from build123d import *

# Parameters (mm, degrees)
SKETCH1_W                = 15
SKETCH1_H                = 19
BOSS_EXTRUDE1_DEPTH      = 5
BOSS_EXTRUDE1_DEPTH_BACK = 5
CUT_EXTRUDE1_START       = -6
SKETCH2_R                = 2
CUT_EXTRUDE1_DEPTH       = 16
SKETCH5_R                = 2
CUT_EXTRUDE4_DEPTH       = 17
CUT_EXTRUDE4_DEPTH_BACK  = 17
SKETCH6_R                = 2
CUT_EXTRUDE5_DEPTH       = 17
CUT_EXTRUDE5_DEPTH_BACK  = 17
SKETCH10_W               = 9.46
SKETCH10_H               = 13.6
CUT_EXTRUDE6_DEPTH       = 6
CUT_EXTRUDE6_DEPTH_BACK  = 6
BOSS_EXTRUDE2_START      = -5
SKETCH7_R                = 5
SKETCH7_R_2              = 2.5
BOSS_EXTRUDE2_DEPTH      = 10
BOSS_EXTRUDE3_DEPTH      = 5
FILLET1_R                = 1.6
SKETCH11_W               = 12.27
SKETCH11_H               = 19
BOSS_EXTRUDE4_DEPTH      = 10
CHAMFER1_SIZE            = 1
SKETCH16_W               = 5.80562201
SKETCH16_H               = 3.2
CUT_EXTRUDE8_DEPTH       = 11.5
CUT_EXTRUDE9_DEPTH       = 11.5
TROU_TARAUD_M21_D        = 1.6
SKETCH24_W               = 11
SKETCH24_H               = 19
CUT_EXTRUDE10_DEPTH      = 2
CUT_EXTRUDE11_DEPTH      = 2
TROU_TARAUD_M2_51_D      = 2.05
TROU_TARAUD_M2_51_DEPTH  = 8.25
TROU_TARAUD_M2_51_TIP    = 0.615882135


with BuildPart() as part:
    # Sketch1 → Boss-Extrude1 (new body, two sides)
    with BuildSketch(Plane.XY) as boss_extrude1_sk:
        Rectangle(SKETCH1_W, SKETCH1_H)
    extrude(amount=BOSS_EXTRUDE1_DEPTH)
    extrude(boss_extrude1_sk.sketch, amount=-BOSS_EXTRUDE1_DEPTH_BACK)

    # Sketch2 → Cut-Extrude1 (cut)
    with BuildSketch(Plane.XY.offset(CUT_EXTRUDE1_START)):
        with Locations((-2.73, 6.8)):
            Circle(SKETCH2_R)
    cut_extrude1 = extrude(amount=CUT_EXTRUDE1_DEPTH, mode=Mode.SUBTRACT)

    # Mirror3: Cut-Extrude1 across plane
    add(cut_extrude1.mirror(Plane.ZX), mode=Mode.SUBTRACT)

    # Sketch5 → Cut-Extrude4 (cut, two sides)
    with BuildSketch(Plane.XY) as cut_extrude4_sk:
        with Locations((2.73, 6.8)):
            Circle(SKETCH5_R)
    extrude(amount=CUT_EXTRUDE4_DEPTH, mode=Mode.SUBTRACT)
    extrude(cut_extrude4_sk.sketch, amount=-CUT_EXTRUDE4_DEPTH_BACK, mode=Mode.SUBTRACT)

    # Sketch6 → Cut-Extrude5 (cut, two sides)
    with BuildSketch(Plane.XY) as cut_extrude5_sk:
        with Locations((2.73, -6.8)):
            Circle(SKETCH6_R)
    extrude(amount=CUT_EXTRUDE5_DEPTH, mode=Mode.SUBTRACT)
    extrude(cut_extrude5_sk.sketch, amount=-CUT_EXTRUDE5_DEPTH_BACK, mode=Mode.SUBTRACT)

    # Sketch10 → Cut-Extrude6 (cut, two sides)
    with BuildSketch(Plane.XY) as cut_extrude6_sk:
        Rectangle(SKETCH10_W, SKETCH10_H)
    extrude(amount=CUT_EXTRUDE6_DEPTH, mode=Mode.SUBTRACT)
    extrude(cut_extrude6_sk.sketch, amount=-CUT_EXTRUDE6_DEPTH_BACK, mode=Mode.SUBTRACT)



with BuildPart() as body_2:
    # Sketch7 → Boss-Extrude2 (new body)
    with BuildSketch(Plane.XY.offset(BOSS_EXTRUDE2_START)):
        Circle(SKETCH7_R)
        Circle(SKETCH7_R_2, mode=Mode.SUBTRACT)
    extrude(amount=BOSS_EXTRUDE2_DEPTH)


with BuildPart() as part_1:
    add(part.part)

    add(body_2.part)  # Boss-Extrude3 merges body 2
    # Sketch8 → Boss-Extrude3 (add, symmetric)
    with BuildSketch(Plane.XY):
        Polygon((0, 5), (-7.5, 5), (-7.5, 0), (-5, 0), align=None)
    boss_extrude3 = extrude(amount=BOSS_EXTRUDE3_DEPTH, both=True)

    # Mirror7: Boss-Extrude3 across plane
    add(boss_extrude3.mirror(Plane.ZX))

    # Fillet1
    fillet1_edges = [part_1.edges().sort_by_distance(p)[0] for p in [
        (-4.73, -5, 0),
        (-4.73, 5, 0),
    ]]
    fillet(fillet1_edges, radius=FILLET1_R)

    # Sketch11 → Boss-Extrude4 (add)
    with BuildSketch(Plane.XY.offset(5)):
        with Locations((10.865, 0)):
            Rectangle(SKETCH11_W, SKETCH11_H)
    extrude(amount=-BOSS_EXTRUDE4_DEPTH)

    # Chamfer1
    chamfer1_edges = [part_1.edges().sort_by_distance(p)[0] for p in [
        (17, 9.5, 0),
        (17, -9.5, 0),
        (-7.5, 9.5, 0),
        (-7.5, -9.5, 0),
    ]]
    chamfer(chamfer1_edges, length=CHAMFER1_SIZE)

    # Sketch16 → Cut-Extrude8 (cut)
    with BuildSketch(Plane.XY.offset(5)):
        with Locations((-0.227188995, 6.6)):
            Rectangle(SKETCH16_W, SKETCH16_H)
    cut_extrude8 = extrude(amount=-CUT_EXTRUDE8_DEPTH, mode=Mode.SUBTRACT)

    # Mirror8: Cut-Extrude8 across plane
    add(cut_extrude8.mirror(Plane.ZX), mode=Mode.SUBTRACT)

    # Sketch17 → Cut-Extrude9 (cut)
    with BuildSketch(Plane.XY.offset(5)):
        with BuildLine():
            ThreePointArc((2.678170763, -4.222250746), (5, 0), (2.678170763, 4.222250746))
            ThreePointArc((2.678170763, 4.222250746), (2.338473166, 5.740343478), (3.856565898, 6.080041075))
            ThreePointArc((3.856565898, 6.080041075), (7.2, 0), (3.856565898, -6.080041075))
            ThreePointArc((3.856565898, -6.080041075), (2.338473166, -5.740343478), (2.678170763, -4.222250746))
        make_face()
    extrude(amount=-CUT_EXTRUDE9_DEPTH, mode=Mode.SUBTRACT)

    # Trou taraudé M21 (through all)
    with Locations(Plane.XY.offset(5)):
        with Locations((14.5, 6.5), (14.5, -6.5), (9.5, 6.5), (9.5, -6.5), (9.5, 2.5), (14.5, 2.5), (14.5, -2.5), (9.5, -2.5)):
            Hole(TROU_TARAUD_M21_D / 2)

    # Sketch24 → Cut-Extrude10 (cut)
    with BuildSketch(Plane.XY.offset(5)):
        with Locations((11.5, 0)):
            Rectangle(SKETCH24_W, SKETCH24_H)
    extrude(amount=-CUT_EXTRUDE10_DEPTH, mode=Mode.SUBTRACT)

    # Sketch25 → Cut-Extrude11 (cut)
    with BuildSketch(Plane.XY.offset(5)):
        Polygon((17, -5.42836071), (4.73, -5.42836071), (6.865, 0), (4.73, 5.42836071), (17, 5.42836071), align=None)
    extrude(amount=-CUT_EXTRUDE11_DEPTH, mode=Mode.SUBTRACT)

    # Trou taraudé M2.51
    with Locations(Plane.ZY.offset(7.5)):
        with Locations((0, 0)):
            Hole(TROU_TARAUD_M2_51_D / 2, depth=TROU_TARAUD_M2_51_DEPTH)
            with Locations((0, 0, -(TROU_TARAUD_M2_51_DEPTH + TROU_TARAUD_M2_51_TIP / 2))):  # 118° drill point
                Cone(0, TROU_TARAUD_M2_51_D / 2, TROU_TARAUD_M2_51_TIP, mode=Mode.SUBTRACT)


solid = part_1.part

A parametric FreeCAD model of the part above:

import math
import FreeCAD as App
import Part
import Sketcher
Q = App.Units.Quantity


def edges_at(feature, points):
    """Names of the edges that pass closest to the given points."""
    edges = feature.Shape.Edges
    near = lambda p: min(range(len(edges)), key=lambda i: edges[i].distToShape(Part.Vertex(*p))[0])
    return sorted({f"Edge{near(p) + 1}" for p in points})


def add_polygon(sketch, points):
    """Adds a closed chain of lines whose ends are joined by coincident constraints."""
    first, n = sketch.GeometryCount, len(points)
    for a, b in zip(points, points[1:] + points[:1]):
        sketch.addGeometry(Part.LineSegment(App.Vector(*a, 0), App.Vector(*b, 0)), False)
    for i in range(n):
        sketch.addConstraint(Sketcher.Constraint("Coincident", first + i, 2, first + (i + 1) % n, 1))

doc = App.newDocument("Part")
body = doc.addObject("PartDesign::Body", "Body")

sketch1 = body.newObject("Sketcher::SketchObject", "Sketch")
sketch1.AttachmentSupport = (doc.getObject("XY_Plane"), [""])
sketch1.MapMode = "FlatFace"
add_polygon(sketch1, [(-8, 10), (-8, -10), (8, -10), (8, 10)])
sketch1.addConstraint([
    Sketcher.Constraint("Vertical", 0),
    Sketcher.Constraint("Horizontal", 1),
    Sketcher.Constraint("Vertical", 2),
    Sketcher.Constraint("Horizontal", 3),
    Sketcher.Constraint("Symmetric", 0, 2, 2, 2, -1, 1),
    Sketcher.Constraint("DistanceX", 1, 1, 1, 2, Q("15 mm")),
    Sketcher.Constraint("DistanceY", 0, 2, 0, 1, Q("19 mm")),
])
pad1 = body.newObject("PartDesign::Pad", "Pad")
pad1.Profile = sketch1
pad1.Type = "TwoLengths"
pad1.Length = 5
pad1.Length2 = 5

sketch2 = body.newObject("Sketcher::SketchObject", "Sketch001")
sketch2.AttachmentSupport = (doc.getObject("XY_Plane"), [""])
sketch2.MapMode = "FlatFace"
sketch2.AttachmentOffset = App.Placement(App.Vector(0, 0, -6), App.Rotation())
sketch2.addGeometry(Part.Circle(App.Vector(-2.7, 6.8, 0), App.Vector(0, 0, 1), 2), False)
sketch2.addConstraint([
    Sketcher.Constraint("Diameter", 0, Q("4 mm")),
    Sketcher.Constraint("DistanceY", -1, 1, 0, 3, Q("6.8 mm")),
    Sketcher.Constraint("DistanceX", 0, 3, -1, 1, Q("2.73 mm")),
])
pocket1 = body.newObject("PartDesign::Pocket", "Pocket")
pocket1.Profile = sketch2
pocket1.Length = 16
pocket1.Reversed = True
doc.recompute()

mirrored = body.newObject("PartDesign::Mirrored", "Mirrored")
mirrored.Originals = [pocket1]
mirrored.MirrorPlane = (doc.getObject("XZ_Plane"), [""])
body.Tip = mirrored

sketch3 = body.newObject("Sketcher::SketchObject", "Sketch002")
sketch3.AttachmentSupport = (doc.getObject("XY_Plane"), [""])
sketch3.MapMode = "FlatFace"
sketch3.addGeometry(Part.Circle(App.Vector(2.7, 6.8, 0), App.Vector(0, 0, 1), 2), False)
sketch3.addConstraint([
    Sketcher.Constraint("Diameter", 0, Q("4 mm")),
    Sketcher.Constraint("DistanceY", -1, 1, 0, 3, Q("6.8 mm")),
    Sketcher.Constraint("DistanceX", -1, 1, 0, 3, Q("2.73 mm")),
])
pocket2 = body.newObject("PartDesign::Pocket", "Pocket001")
pocket2.Profile = sketch3
pocket2.Type = "ThroughAll"
pocket2.Midplane = True

sketch4 = body.newObject("Sketcher::SketchObject", "Sketch003")
sketch4.AttachmentSupport = (doc.getObject("XY_Plane"), [""])
sketch4.MapMode = "FlatFace"
sketch4.addGeometry(Part.Circle(App.Vector(2.7, -6.8, 0), App.Vector(0, 0, 1), 2), False)
sketch4.addConstraint([
    Sketcher.Constraint("Diameter", 0, Q("4 mm")),
    Sketcher.Constraint("DistanceY", 0, 3, -1, 1, Q("6.8 mm")),
    Sketcher.Constraint("DistanceX", -1, 1, 0, 3, Q("2.73 mm")),
])
pocket3 = body.newObject("PartDesign::Pocket", "Pocket002")
pocket3.Profile = sketch4
pocket3.Type = "ThroughAll"
pocket3.Midplane = True

sketch5 = body.newObject("Sketcher::SketchObject", "Sketch004")
sketch5.AttachmentSupport = (doc.getObject("XY_Plane"), [""])
sketch5.MapMode = "FlatFace"
add_polygon(sketch5, [(-5, 7), (-5, -7), (5, -7), (5, 7)])
sketch5.addConstraint([
    Sketcher.Constraint("Vertical", 0),
    Sketcher.Constraint("Horizontal", 1),
    Sketcher.Constraint("Vertical", 2),
    Sketcher.Constraint("Horizontal", 3),
    Sketcher.Constraint("Symmetric", 0, 2, 2, 2, -1, 1),
    Sketcher.Constraint("DistanceY", 0, 2, 0, 1, Q("13.6 mm")),
    Sketcher.Constraint("DistanceX", 1, 1, 1, 2, Q("9.46 mm")),
])
pocket4 = body.newObject("PartDesign::Pocket", "Pocket003")
pocket4.Profile = sketch5
pocket4.Type = "ThroughAll"
pocket4.Midplane = True
body2 = doc.addObject("PartDesign::Body", "Body001")

sketch6 = body2.newObject("Sketcher::SketchObject", "Sketch005")
sketch6.AttachmentSupport = (doc.getObject("XY_Plane001"), [""])
sketch6.MapMode = "FlatFace"
sketch6.AttachmentOffset = App.Placement(App.Vector(0, 0, -5), App.Rotation())
sketch6.addGeometry([
    Part.Circle(App.Vector(0, 0, 0), App.Vector(0, 0, 1), 5),
    Part.Circle(App.Vector(0, 0, 0), App.Vector(0, 0, 1), 2.5),
], False)
sketch6.addConstraint([
    Sketcher.Constraint("Coincident", 0, 3, -1, 1),
    Sketcher.Constraint("Coincident", 1, 3, -1, 1),
    Sketcher.Constraint("Diameter", 0, Q("10 mm")),
    Sketcher.Constraint("Diameter", 1, Q("5 mm")),
])
pad2 = body2.newObject("PartDesign::Pad", "Pad001")
pad2.Profile = sketch6
pad2.Length = 10
doc.recompute()

boolean = body.newObject("PartDesign::Boolean", "Boolean")
boolean.Type = "Fuse"
boolean.addObjects([body2])

sketch7 = body.newObject("Sketcher::SketchObject", "Sketch006")
sketch7.AttachmentSupport = (doc.getObject("XY_Plane"), [""])
sketch7.MapMode = "FlatFace"
add_polygon(sketch7, [(0, 5), (-7.5, 5), (-7.5, 0), (-5, 0)])
sketch7.addConstraint([
    Sketcher.Constraint("Horizontal", 0),
    Sketcher.Constraint("Vertical", 1),
    Sketcher.Constraint("Horizontal", 2),
    Sketcher.Constraint("PointOnObject", 1, 2, -1),
    Sketcher.Constraint("PointOnObject", 3, 2, -2),
    Sketcher.Constraint("DistanceY", 1, 2, 1, 1, Q("5 mm")),
    Sketcher.Constraint("Angle", 3, Q("45 deg")),
    Sketcher.Constraint("DistanceX", 0, 2, 0, 1, Q("7.5 mm")),
])
pad3 = body.newObject("PartDesign::Pad", "Pad002")
pad3.Profile = sketch7
pad3.Length = 10
pad3.Midplane = True
doc.recompute()

mirrored2 = body.newObject("PartDesign::Mirrored", "Mirrored001")
mirrored2.Originals = [pad3]
mirrored2.MirrorPlane = (doc.getObject("XZ_Plane"), [""])
body.Tip = mirrored2
doc.recompute()

fillet = body.newObject("PartDesign::Fillet", "Fillet")
fillet.Base = (mirrored2, edges_at(mirrored2, [(-4.73, -5, 0), (-4.73, 5, 0)]))
fillet.Radius = 1.6

sketch8 = body.newObject("Sketcher::SketchObject", "Sketch007")
sketch8.AttachmentSupport = (doc.getObject("XY_Plane"), [""])
sketch8.MapMode = "FlatFace"
sketch8.AttachmentOffset = App.Placement(App.Vector(0, 0, 5), App.Rotation())
add_polygon(sketch8, [(5, 10), (5, -10), (17, -10), (17, 10)])
sketch8.addConstraint([
    Sketcher.Constraint("Vertical", 0),
    Sketcher.Constraint("Horizontal", 1),
    Sketcher.Constraint("Vertical", 2),
    Sketcher.Constraint("Horizontal", 3),
    Sketcher.Constraint("DistanceY", 0, 2, 0, 1, Q("19 mm")),
    Sketcher.Constraint("DistanceX", -1, 1, 1, 2, Q("17 mm")),
    Sketcher.Constraint("DistanceX", 1, 1, 1, 2, Q("12.27 mm")),
    Sketcher.Constraint("DistanceY", 0, 2, -1, 1, Q("9.5 mm")),
])
pad4 = body.newObject("PartDesign::Pad", "Pad003")
pad4.Profile = sketch8
pad4.Length = 10
pad4.Reversed = True
doc.recompute()

chamfer = body.newObject("PartDesign::Chamfer", "Chamfer")
chamfer.Base = (pad4, edges_at(pad4, [
    (17, 9.5, 0),
    (17, -9.5, 0),
    (-7.5, 9.5, 0),
    (-7.5, -9.5, 0),
]))
chamfer.Size = 1

sketch9 = body.newObject("Sketcher::SketchObject", "Sketch008")
sketch9.AttachmentSupport = (doc.getObject("XY_Plane"), [""])
sketch9.MapMode = "FlatFace"
sketch9.AttachmentOffset = App.Placement(App.Vector(0, 0, 5), App.Rotation())
add_polygon(sketch9, [(-3.1, 8.2), (-3.1, 5), (2.7, 5), (2.7, 8.2)])
sketch9.addConstraint([
    Sketcher.Constraint("Vertical", 0),
    Sketcher.Constraint("Horizontal", 1),
    Sketcher.Constraint("Vertical", 2),
    Sketcher.Constraint("Horizontal", 3),
    Sketcher.Constraint("DistanceY", 0, 2, 0, 1, Q("3.2 mm")),
    Sketcher.Constraint("DistanceY", -1, 1, 0, 2, Q("5 mm")),
    Sketcher.Constraint("DistanceX", 0, 2, -1, 1, Q("3.13 mm")),
    Sketcher.Constraint("DistanceX", 1, 1, 1, 2, Q("5.805622 mm")),
])
pocket5 = body.newObject("PartDesign::Pocket", "Pocket004")
pocket5.Profile = sketch9
pocket5.Length = 11.5
doc.recompute()

mirrored3 = body.newObject("PartDesign::Mirrored", "Mirrored002")
mirrored3.Originals = [pocket5]
mirrored3.MirrorPlane = (doc.getObject("XZ_Plane"), [""])
body.Tip = mirrored3

sketch10 = body.newObject("Sketcher::SketchObject", "Sketch009")
sketch10.AttachmentSupport = (doc.getObject("XY_Plane"), [""])
sketch10.MapMode = "FlatFace"
sketch10.AttachmentOffset = App.Placement(App.Vector(0, 0, 5), App.Rotation())
sketch10.addGeometry([
    Part.ArcOfCircle(Part.Circle(App.Vector(0, 0, 0), App.Vector(0, 0, 1), 5), math.radians(-58), math.radians(58)),
    Part.ArcOfCircle(Part.Circle(App.Vector(3.3, -5.2, 0), App.Vector(0, 0, 1), 1.1), math.radians(122), math.radians(302)),
    Part.ArcOfCircle(Part.Circle(App.Vector(0, 0, 0), App.Vector(0, 0, 1), 7.2), math.radians(-58), math.radians(58)),
    Part.ArcOfCircle(Part.Circle(App.Vector(3.3, 5.2, 0), App.Vector(0, 0, 1), 1.1), math.radians(58), math.radians(238)),
], False)
sketch10.addConstraint([
    Sketcher.Constraint("Tangent", 0, 1, 1, 1),
    Sketcher.Constraint("Tangent", 1, 2, 2, 1),
    Sketcher.Constraint("Tangent", 2, 2, 3, 1),
    Sketcher.Constraint("Tangent", 3, 2, 0, 2),
    Sketcher.Constraint("Coincident", 0, 3, -1, 1),
    Sketcher.Constraint("Coincident", 2, 3, -1, 1),
    Sketcher.Constraint("Vertical", 1, 3, 3, 3),
    Sketcher.Constraint("Radius", 0, Q("5 mm")),
    Sketcher.Constraint("Radius", 1, Q("1.1 mm")),
    Sketcher.Constraint("DistanceY", 0, 1, 3, 2, Q("8.444501 mm")),
])
pocket6 = body.newObject("PartDesign::Pocket", "Pocket005")
pocket6.Profile = sketch10
pocket6.Length = 11.5

sketch11 = body.newObject("Sketcher::SketchObject", "Sketch010")
sketch11.AttachmentSupport = (doc.getObject("XY_Plane"), [""])
sketch11.MapMode = "FlatFace"
sketch11.AttachmentOffset = App.Placement(App.Vector(0, 0, 5), App.Rotation())
sketch11.addGeometry([
    Part.Circle(App.Vector(14.5, 6.5, 0), App.Vector(0, 0, 1), 0.8),
    Part.Circle(App.Vector(14.5, -6.5, 0), App.Vector(0, 0, 1), 0.8),
    Part.Circle(App.Vector(9.5, 6.5, 0), App.Vector(0, 0, 1), 0.8),
    Part.Circle(App.Vector(9.5, -6.5, 0), App.Vector(0, 0, 1), 0.8),
    Part.Circle(App.Vector(9.5, 2.5, 0), App.Vector(0, 0, 1), 0.8),
    Part.Circle(App.Vector(14.5, 2.5, 0), App.Vector(0, 0, 1), 0.8),
    Part.Circle(App.Vector(14.5, -2.5, 0), App.Vector(0, 0, 1), 0.8),
    Part.Circle(App.Vector(9.5, -2.5, 0), App.Vector(0, 0, 1), 0.8),
], False)
sketch11.addConstraint([
    Sketcher.Constraint("Equal", 0, 1),
    Sketcher.Constraint("Equal", 1, 2),
    Sketcher.Constraint("Equal", 2, 3),
    Sketcher.Constraint("Equal", 3, 4),
    Sketcher.Constraint("Equal", 4, 5),
    Sketcher.Constraint("Equal", 5, 6),
    Sketcher.Constraint("Equal", 6, 7),
    Sketcher.Constraint("Symmetric", 0, 3, 1, 3, -1),
    Sketcher.Constraint("Symmetric", 2, 3, 3, 3, -1),
    Sketcher.Constraint("Symmetric", 5, 3, 6, 3, -1),
    Sketcher.Constraint("Symmetric", 4, 3, 7, 3, -1),
    Sketcher.Constraint("Horizontal", 0, 3, 2, 3),
    Sketcher.Constraint("Horizontal", 4, 3, 5, 3),
    Sketcher.Constraint("Vertical", 3, 3, 4, 3),
    Sketcher.Constraint("Vertical", 1, 3, 5, 3),
    Sketcher.Constraint("Diameter", 0, Q("1.6 mm")),
    Sketcher.Constraint("DistanceY", 1, 3, 0, 3, Q("13 mm")),
    Sketcher.Constraint("DistanceX", 2, 3, 0, 3, Q("5 mm")),
    Sketcher.Constraint("DistanceY", 4, 3, 2, 3, Q("4 mm")),
    Sketcher.Constraint("DistanceX", -1, 1, 0, 3, Q("14.5 mm")),
])
doc.recompute()
hole = body.newObject("PartDesign::Hole", "Hole")
hole.Profile = sketch11
hole.ThreadType = "None"
hole.Diameter = 1.6
hole.DepthType = "ThroughAll"

sketch12 = body.newObject("Sketcher::SketchObject", "Sketch011")
sketch12.AttachmentSupport = (doc.getObject("XY_Plane"), [""])
sketch12.MapMode = "FlatFace"
sketch12.AttachmentOffset = App.Placement(App.Vector(0, 0, 5), App.Rotation())
add_polygon(sketch12, [(6, 10), (6, -10), (17, -10), (17, 10)])
sketch12.addConstraint([
    Sketcher.Constraint("Vertical", 0),
    Sketcher.Constraint("Horizontal", 1),
    Sketcher.Constraint("Vertical", 2),
    Sketcher.Constraint("Horizontal", 3),
    Sketcher.Constraint("DistanceX", 1, 1, 1, 2, Q("11 mm")),
    Sketcher.Constraint("DistanceY", 0, 2, 0, 1, Q("19 mm")),
    Sketcher.Constraint("DistanceX", -1, 1, 0, 2, Q("6 mm")),
    Sketcher.Constraint("DistanceY", 0, 2, -1, 1, Q("9.5 mm")),
])
pocket7 = body.newObject("PartDesign::Pocket", "Pocket006")
pocket7.Profile = sketch12
pocket7.Length = 2

sketch13 = body.newObject("Sketcher::SketchObject", "Sketch012")
sketch13.AttachmentSupport = (doc.getObject("XY_Plane"), [""])
sketch13.MapMode = "FlatFace"
sketch13.AttachmentOffset = App.Placement(App.Vector(0, 0, 5), App.Rotation())
add_polygon(sketch13, [(5, -5), (17, -5), (17, 5), (5, 5), (7, 0)])
sketch13.addConstraint([
    Sketcher.Constraint("Horizontal", 0),
    Sketcher.Constraint("Vertical", 1),
    Sketcher.Constraint("Horizontal", 2),
    Sketcher.Constraint("Symmetric", 2, 2, 4, 2, -1),
    Sketcher.Constraint("PointOnObject", 3, 2, -1),
    Sketcher.Constraint("DistanceX", -1, 1, 0, 2, Q("17 mm")),
    Sketcher.Constraint("DistanceX", 0, 1, 0, 2, Q("12.27 mm")),
    Sketcher.Constraint("DistanceX", -1, 1, 3, 2, Q("6.865 mm")),
    Sketcher.Constraint("DistanceY", 1, 1, 1, 2, Q("10.856721 mm")),
])
pocket8 = body.newObject("PartDesign::Pocket", "Pocket007")
pocket8.Profile = sketch13
pocket8.Length = 2

sketch14 = body.newObject("Sketcher::SketchObject", "Sketch013")
sketch14.AttachmentSupport = (doc.getObject("YZ_Plane"), [""])
sketch14.MapMode = "FlatFace"
sketch14.AttachmentOffset = App.Placement(App.Vector(0, 0, -7.5), App.Rotation())
sketch14.addGeometry(Part.Circle(App.Vector(0, 0, 0), App.Vector(0, 0, 1), 1), False)
sketch14.addConstraint([
    Sketcher.Constraint("Coincident", 0, 3, -1, 1),
    Sketcher.Constraint("Diameter", 0, Q("2.05 mm")),
])
doc.recompute()
hole2 = body.newObject("PartDesign::Hole", "Hole001")
hole2.Profile = sketch14
hole2.ThreadType = "None"
hole2.Diameter = 2.05
hole2.DepthType = "Dimension"
hole2.Depth = 8.25
hole2.DrillPoint = "Angled"
hole2.DrillPointAngle = 118
hole2.Reversed = True

doc.recompute()
